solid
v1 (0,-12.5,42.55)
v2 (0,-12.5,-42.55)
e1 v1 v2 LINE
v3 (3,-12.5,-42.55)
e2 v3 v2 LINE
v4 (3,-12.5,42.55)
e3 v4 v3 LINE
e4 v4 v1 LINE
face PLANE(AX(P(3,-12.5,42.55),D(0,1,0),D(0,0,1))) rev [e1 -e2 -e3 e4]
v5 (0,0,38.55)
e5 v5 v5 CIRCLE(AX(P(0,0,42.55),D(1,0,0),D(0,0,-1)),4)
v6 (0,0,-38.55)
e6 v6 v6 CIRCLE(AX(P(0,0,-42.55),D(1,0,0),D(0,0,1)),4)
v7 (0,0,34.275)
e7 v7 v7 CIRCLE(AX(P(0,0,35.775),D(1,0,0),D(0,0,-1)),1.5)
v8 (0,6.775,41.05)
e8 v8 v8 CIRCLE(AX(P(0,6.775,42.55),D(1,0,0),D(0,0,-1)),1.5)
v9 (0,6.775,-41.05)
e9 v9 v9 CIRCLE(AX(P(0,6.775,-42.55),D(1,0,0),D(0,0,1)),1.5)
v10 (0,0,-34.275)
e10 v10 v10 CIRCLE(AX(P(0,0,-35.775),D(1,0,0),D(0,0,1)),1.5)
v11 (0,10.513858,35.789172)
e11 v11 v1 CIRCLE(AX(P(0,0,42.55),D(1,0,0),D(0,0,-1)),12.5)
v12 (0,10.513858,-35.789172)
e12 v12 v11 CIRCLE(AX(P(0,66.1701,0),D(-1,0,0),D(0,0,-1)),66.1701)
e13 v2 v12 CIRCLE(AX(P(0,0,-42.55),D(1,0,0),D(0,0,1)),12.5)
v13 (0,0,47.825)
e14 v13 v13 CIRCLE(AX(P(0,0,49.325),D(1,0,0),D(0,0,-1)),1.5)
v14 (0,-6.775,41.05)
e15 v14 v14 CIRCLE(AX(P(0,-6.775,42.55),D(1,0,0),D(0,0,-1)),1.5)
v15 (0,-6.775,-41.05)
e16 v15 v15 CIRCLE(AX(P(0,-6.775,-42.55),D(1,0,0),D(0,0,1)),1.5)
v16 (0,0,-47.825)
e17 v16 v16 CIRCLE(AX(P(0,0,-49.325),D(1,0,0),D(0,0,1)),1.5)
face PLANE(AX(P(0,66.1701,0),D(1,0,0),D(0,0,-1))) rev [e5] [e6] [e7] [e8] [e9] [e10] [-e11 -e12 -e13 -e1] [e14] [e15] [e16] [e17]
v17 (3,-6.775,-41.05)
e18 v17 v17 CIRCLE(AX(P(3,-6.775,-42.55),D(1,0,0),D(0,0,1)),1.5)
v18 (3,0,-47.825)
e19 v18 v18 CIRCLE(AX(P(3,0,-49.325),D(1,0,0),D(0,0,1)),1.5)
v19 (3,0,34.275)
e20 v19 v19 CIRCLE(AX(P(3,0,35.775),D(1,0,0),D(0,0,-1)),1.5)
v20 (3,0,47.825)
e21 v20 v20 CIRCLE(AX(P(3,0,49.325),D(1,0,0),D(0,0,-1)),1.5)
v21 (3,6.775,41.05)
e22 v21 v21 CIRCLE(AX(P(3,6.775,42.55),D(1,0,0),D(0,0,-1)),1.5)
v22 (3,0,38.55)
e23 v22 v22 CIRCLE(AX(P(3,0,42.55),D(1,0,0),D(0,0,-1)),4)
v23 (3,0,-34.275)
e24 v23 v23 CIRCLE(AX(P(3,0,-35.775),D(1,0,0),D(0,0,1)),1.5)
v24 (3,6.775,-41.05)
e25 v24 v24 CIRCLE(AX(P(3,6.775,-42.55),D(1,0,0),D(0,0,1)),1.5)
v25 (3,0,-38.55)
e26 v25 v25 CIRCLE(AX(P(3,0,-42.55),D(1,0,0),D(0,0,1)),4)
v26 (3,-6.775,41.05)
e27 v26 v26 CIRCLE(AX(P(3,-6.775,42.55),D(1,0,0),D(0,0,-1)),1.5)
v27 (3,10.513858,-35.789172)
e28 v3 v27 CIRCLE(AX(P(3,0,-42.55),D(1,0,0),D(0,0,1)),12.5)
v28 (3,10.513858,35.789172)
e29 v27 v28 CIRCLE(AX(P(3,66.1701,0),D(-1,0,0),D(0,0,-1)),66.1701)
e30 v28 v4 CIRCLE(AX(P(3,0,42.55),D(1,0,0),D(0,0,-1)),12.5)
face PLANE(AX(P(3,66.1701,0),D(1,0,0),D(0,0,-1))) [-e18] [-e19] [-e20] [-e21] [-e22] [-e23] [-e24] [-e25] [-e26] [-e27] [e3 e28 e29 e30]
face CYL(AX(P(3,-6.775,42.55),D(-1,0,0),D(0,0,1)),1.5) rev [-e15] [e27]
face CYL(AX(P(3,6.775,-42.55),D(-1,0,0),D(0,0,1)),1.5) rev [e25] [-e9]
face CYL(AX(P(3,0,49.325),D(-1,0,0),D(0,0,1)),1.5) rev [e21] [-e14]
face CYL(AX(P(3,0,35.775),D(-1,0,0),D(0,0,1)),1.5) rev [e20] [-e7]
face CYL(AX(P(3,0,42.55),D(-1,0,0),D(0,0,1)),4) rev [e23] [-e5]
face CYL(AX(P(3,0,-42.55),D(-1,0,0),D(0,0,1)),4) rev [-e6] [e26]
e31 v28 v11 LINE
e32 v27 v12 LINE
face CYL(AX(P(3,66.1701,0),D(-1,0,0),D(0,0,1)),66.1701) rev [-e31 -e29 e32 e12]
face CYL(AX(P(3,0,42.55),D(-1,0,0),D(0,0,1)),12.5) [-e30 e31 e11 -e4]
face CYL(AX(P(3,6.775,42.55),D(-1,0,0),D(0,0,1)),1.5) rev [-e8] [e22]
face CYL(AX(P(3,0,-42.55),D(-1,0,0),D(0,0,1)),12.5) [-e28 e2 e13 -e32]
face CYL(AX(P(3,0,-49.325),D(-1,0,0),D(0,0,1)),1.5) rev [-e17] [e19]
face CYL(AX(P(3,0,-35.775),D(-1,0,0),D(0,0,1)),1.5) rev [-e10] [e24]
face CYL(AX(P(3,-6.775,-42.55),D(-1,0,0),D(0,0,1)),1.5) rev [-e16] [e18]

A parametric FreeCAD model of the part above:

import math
import FreeCAD as App
import Part
import Sketcher
from FreeCAD import Vector
Q = App.Units.Quantity

doc = App.newDocument("Part")
params = doc.addObject("Spreadsheet::Sheet", "Params")
for row, (alias, value) in enumerate([
    ("sketch1_diameter", "3 mm"),
    ("sketch1_diameter2", "8 mm"),
    ("sketch1_radius", "12.5 mm"),
    ("sketch1_height", "85.1 mm"),
    ("pad1_length", "3 mm"),
], start=1):
    params.set(f"A{row}", alias)
    params.set(f"B{row}", "=" + value)
    params.setAlias(f"B{row}", alias)

body = doc.addObject("PartDesign::Body", "Body")

sketch1 = body.newObject("Sketcher::SketchObject", "Sketch")
sketch1.AttachmentSupport = (doc.getObject("YZ_Plane"), [""])
sketch1.MapMode = "FlatFace"
sketch1.addGeometry(Part.LineSegment(Vector(-12.5, 42.5, 0), Vector(-12.5, -42.5, 0)), False)
sketch1.addGeometry(Part.ArcOfCircle(Part.Circle(Vector(0, -42.5, 0), Vector(0, 0, 1), 12.5), math.radians(180), math.radians(393)), False)
sketch1.addGeometry(Part.ArcOfCircle(Part.Circle(Vector(66.2, 0, 0), Vector(0, 0, 1), 66.2), math.radians(147), math.radians(213)), False)
sketch1.addGeometry(Part.ArcOfCircle(Part.Circle(Vector(0, 42.5, 0), Vector(0, 0, 1), 12.5), math.radians(-33), math.radians(180)), False)
sketch1.addGeometry(Part.Circle(Vector(-6.8, 42.5, 0), Vector(0, 0, 1), 1.5), False)
sketch1.addGeometry(Part.Circle(Vector(-6.8, -42.5, 0), Vector(0, 0, 1), 1.5), False)
sketch1.addGeometry(Part.Circle(Vector(0, 49.3, 0), Vector(0, 0, 1), 1.5), False)
sketch1.addGeometry(Part.Circle(Vector(0, 42.5, 0), Vector(0, 0, 1), 4), False)
sketch1.addGeometry(Part.Circle(Vector(0, 35.8, 0), Vector(0, 0, 1), 1.5), False)
sketch1.addGeometry(Part.Circle(Vector(6.8, 42.5, 0), Vector(0, 0, 1), 1.5), False)
sketch1.addGeometry(Part.Circle(Vector(0, -35.8, 0), Vector(0, 0, 1), 1.5), False)
sketch1.addGeometry(Part.Circle(Vector(0, -42.5, 0), Vector(0, 0, 1), 4), False)
sketch1.addGeometry(Part.Circle(Vector(0, -49.3, 0), Vector(0, 0, 1), 1.5), False)
sketch1.addGeometry(Part.Circle(Vector(6.8, -42.5, 0), Vector(0, 0, 1), 1.5), False)
sketch1.addConstraint(Sketcher.Constraint("Tangent", 0, 2, 1, 1))
sketch1.addConstraint(Sketcher.Constraint("Tangent", 1, 2, 2, 2))
sketch1.addConstraint(Sketcher.Constraint("Tangent", 2, 1, 3, 1))
sketch1.addConstraint(Sketcher.Constraint("Tangent", 3, 2, 0, 1))
sketch1.addConstraint(Sketcher.Constraint("Vertical", 0))
sketch1.addConstraint(Sketcher.Constraint("Coincident", 7, 3, 3, 3))
sketch1.addConstraint(Sketcher.Constraint("Coincident", 11, 3, 1, 3))
sketch1.addConstraint(Sketcher.Constraint("Equal", 1, 3))
sketch1.addConstraint(Sketcher.Constraint("Equal", 4, 5))
sketch1.addConstraint(Sketcher.Constraint("Equal", 5, 6))
sketch1.addConstraint(Sketcher.Constraint("Equal", 6, 8))
sketch1.addConstraint(Sketcher.Constraint("Equal", 8, 9))
sketch1.addConstraint(Sketcher.Constraint("Equal", 9, 10))
sketch1.addConstraint(Sketcher.Constraint("Equal", 7, 11))
sketch1.addConstraint(Sketcher.Constraint("Equal", 10, 12))
sketch1.addConstraint(Sketcher.Constraint("Equal", 12, 13))
sketch1.addConstraint(Sketcher.Constraint("Symmetric", 1, 3, 3, 3, -1, 1))
sketch1.addConstraint(Sketcher.Constraint("Symmetric", 5, 3, 9, 3, -1, 1))
sketch1.addConstraint(Sketcher.Constraint("Symmetric", 8, 3, 10, 3, -1, 1))
sketch1.addConstraint(Sketcher.Constraint("Symmetric", 6, 3, 12, 3, -1, 1))
sketch1.addConstraint(Sketcher.Constraint("Symmetric", 4, 3, 13, 3, -1, 1))
sketch1.addConstraint(Sketcher.Constraint("Symmetric", 4, 3, 9, 3, -2))
sketch1.addConstraint(Sketcher.Constraint("PointOnObject", 6, 3, -2))
sketch1.addConstraint(Sketcher.Constraint("PointOnObject", 8, 3, -2))
sketch1.addConstraint(Sketcher.Constraint("Horizontal", 3, 3, 4, 3))
sketch1.addConstraint(Sketcher.Constraint("Diameter", 4, Q("3 mm")))
sketch1.addConstraint(Sketcher.Constraint("Diameter", 7, Q("8 mm")))
sketch1.addConstraint(Sketcher.Constraint("Radius", 1, Q("12.5 mm")))
sketch1.addConstraint(Sketcher.Constraint("DistanceY", 0, 2, 0, 1, Q("85.1 mm")))
sketch1.addConstraint(Sketcher.Constraint("Radius", 2, Q("66.1701 mm")))
sketch1.addConstraint(Sketcher.Constraint("DistanceY", 8, 3, 6, 3, Q("13.55 mm")))
sketch1.addConstraint(Sketcher.Constraint("DistanceX", 4, 3, 9, 3, Q("13.55 mm")))
sketch1.addConstraint(Sketcher.Constraint("DistanceY", 10, 3, 8, 3, Q("71.55 mm")))
sketch1.setExpression("Constraints[25]", "Params.sketch1_diameter")
sketch1.setExpression("Constraints[26]", "Params.sketch1_diameter2")
sketch1.setExpression("Constraints[27]", "Params.sketch1_radius")
sketch1.setExpression("Constraints[28]", "Params.sketch1_height")
pad1 = body.newObject("PartDesign::Pad", "Pad")
pad1.Profile = sketch1
pad1.setExpression("Length", "Params.pad1_length")

doc.recompute()
